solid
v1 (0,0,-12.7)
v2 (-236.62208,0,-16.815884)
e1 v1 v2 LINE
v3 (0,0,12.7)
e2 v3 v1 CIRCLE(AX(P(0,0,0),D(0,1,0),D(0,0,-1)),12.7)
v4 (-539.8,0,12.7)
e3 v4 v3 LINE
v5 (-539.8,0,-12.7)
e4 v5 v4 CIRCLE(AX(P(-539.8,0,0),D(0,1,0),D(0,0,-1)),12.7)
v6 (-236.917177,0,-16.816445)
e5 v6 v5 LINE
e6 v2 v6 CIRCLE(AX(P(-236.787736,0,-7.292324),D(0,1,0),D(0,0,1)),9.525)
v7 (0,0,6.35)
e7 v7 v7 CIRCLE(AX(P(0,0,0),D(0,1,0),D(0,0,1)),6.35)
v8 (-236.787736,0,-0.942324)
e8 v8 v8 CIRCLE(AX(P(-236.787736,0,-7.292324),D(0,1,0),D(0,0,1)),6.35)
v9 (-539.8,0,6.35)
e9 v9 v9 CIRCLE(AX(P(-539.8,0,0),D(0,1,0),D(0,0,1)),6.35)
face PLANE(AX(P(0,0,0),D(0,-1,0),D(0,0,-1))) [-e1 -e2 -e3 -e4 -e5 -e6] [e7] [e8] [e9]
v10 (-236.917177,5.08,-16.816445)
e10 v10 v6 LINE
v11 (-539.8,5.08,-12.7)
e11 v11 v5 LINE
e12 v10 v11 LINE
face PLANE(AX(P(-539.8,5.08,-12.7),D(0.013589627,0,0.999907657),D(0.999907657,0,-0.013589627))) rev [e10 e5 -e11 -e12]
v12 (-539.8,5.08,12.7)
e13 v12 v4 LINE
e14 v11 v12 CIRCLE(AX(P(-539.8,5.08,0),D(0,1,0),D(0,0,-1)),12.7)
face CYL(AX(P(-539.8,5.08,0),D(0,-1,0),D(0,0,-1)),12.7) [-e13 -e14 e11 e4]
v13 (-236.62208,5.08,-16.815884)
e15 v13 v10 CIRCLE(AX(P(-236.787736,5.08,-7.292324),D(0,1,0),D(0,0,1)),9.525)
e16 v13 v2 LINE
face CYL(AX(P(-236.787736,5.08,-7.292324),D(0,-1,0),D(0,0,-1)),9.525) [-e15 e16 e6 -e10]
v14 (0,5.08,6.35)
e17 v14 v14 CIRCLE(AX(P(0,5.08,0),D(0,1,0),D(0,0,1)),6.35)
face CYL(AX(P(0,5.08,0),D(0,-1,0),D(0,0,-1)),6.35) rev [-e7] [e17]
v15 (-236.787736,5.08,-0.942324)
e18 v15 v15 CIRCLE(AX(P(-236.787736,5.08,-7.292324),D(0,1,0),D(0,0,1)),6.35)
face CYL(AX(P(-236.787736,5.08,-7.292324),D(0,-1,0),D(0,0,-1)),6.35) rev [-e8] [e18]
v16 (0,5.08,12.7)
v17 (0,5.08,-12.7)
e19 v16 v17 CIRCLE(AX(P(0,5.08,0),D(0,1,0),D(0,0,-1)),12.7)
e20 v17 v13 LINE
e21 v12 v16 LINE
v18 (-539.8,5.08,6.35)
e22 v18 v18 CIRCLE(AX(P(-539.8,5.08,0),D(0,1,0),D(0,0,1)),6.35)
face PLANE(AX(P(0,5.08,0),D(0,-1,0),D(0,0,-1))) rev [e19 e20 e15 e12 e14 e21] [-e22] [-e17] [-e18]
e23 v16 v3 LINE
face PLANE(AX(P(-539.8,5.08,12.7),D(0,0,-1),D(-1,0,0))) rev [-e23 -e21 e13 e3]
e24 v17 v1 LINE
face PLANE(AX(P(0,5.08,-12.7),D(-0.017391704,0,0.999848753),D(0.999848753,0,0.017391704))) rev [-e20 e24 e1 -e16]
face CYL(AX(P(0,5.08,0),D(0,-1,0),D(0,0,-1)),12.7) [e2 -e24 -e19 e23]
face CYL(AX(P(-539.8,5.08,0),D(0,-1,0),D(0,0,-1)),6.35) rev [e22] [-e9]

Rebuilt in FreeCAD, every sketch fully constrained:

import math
import FreeCAD as App
import Part
import Sketcher
Q = App.Units.Quantity

doc = App.newDocument("Part")
params = doc.addObject("Spreadsheet::Sheet", "Params")
for row, (alias, value) in enumerate([
    ("sketch1_diameter", "0.5 in"),
    ("sketch1_radius", "0.5 in"),
    ("sketch1_radius2", "0.375 in"),
    ("pad1_length", "0.2 in"),
], start=1):
    params.set(f"A{row}", alias)
    params.set(f"B{row}", "=" + value)
    params.setAlias(f"B{row}", alias)

body = doc.addObject("PartDesign::Body", "Body")

sketch1 = body.newObject("Sketcher::SketchObject", "Sketch")
sketch1.AttachmentSupport = (doc.getObject("XZ_Plane"), [""])
sketch1.MapMode = "FlatFace"
sketch1.addGeometry([
    Part.LineSegment(App.Vector(-539.8, 12.7, 0), App.Vector(0, 12.7, 0)),
    Part.ArcOfCircle(Part.Circle(App.Vector(0, 0, 0), App.Vector(0, 0, 1), 12.7), math.radians(-90), math.radians(90)),
    Part.LineSegment(App.Vector(0, -12.7, 0), App.Vector(-236.62, -16.82, 0)),
    Part.ArcOfCircle(Part.Circle(App.Vector(-236.79, -7.29, 0), App.Vector(0, 0, 1), 9.53), math.radians(-90.78), math.radians(-89)),
    Part.LineSegment(App.Vector(-236.92, -16.82, 0), App.Vector(-539.8, -12.7, 0)),
    Part.ArcOfCircle(Part.Circle(App.Vector(-539.8, 0, 0), App.Vector(0, 0, 1), 12.7), math.radians(90), math.radians(270)),
    Part.Circle(App.Vector(-539.8, 0, 0), App.Vector(0, 0, 1), 6.35),
    Part.Circle(App.Vector(0, 0, 0), App.Vector(0, 0, 1), 6.35),
    Part.Circle(App.Vector(-236.79, -7.29, 0), App.Vector(0, 0, 1), 6.35),
], False)
sketch1.addConstraint([
    Sketcher.Constraint("Tangent", 0, 2, 1, 2),
    Sketcher.Constraint("Coincident", 1, 1, 2, 1),
    Sketcher.Constraint("Tangent", 2, 2, 3, 2),
    Sketcher.Constraint("Tangent", 3, 1, 4, 1),
    Sketcher.Constraint("Coincident", 4, 2, 5, 2),
    Sketcher.Constraint("Tangent", 5, 1, 0, 1),
    Sketcher.Constraint("Horizontal", 0),
    Sketcher.Constraint("Coincident", 1, 3, -1, 1),
    Sketcher.Constraint("Coincident", 7, 3, -1, 1),
    Sketcher.Constraint("Coincident", 6, 3, 5, 3),
    Sketcher.Constraint("Coincident", 8, 3, 3, 3),
    Sketcher.Constraint("Equal", 1, 5),
    Sketcher.Constraint("Equal", 6, 7),
    Sketcher.Constraint("Equal", 7, 8),
    Sketcher.Constraint("PointOnObject", 1, 1, -2),
    Sketcher.Constraint("Vertical", 6, 3, 4, 2),
    Sketcher.Constraint("Diameter", 6, Q("0.5 in")),
    Sketcher.Constraint("Radius", 1, Q("0.5 in")),
    Sketcher.Constraint("Radius", 3, Q("0.375 in")),
    Sketcher.Constraint("DistanceX", 0, 1, 0, 2, 539.8),
    Sketcher.Constraint("DistanceX", 2, 2, -1, 1, 236.62208),
    Sketcher.Constraint("Distance", 2, 236.657874),
])
sketch1.setExpression("Constraints[16]", "Params.sketch1_diameter")
sketch1.setExpression("Constraints[17]", "Params.sketch1_radius")
sketch1.setExpression("Constraints[18]", "Params.sketch1_radius2")
pad1 = body.newObject("PartDesign::Pad", "Pad")
pad1.Profile = sketch1
pad1.setExpression("Length", "Params.pad1_length")
pad1.Reversed = True

doc.recompute()
